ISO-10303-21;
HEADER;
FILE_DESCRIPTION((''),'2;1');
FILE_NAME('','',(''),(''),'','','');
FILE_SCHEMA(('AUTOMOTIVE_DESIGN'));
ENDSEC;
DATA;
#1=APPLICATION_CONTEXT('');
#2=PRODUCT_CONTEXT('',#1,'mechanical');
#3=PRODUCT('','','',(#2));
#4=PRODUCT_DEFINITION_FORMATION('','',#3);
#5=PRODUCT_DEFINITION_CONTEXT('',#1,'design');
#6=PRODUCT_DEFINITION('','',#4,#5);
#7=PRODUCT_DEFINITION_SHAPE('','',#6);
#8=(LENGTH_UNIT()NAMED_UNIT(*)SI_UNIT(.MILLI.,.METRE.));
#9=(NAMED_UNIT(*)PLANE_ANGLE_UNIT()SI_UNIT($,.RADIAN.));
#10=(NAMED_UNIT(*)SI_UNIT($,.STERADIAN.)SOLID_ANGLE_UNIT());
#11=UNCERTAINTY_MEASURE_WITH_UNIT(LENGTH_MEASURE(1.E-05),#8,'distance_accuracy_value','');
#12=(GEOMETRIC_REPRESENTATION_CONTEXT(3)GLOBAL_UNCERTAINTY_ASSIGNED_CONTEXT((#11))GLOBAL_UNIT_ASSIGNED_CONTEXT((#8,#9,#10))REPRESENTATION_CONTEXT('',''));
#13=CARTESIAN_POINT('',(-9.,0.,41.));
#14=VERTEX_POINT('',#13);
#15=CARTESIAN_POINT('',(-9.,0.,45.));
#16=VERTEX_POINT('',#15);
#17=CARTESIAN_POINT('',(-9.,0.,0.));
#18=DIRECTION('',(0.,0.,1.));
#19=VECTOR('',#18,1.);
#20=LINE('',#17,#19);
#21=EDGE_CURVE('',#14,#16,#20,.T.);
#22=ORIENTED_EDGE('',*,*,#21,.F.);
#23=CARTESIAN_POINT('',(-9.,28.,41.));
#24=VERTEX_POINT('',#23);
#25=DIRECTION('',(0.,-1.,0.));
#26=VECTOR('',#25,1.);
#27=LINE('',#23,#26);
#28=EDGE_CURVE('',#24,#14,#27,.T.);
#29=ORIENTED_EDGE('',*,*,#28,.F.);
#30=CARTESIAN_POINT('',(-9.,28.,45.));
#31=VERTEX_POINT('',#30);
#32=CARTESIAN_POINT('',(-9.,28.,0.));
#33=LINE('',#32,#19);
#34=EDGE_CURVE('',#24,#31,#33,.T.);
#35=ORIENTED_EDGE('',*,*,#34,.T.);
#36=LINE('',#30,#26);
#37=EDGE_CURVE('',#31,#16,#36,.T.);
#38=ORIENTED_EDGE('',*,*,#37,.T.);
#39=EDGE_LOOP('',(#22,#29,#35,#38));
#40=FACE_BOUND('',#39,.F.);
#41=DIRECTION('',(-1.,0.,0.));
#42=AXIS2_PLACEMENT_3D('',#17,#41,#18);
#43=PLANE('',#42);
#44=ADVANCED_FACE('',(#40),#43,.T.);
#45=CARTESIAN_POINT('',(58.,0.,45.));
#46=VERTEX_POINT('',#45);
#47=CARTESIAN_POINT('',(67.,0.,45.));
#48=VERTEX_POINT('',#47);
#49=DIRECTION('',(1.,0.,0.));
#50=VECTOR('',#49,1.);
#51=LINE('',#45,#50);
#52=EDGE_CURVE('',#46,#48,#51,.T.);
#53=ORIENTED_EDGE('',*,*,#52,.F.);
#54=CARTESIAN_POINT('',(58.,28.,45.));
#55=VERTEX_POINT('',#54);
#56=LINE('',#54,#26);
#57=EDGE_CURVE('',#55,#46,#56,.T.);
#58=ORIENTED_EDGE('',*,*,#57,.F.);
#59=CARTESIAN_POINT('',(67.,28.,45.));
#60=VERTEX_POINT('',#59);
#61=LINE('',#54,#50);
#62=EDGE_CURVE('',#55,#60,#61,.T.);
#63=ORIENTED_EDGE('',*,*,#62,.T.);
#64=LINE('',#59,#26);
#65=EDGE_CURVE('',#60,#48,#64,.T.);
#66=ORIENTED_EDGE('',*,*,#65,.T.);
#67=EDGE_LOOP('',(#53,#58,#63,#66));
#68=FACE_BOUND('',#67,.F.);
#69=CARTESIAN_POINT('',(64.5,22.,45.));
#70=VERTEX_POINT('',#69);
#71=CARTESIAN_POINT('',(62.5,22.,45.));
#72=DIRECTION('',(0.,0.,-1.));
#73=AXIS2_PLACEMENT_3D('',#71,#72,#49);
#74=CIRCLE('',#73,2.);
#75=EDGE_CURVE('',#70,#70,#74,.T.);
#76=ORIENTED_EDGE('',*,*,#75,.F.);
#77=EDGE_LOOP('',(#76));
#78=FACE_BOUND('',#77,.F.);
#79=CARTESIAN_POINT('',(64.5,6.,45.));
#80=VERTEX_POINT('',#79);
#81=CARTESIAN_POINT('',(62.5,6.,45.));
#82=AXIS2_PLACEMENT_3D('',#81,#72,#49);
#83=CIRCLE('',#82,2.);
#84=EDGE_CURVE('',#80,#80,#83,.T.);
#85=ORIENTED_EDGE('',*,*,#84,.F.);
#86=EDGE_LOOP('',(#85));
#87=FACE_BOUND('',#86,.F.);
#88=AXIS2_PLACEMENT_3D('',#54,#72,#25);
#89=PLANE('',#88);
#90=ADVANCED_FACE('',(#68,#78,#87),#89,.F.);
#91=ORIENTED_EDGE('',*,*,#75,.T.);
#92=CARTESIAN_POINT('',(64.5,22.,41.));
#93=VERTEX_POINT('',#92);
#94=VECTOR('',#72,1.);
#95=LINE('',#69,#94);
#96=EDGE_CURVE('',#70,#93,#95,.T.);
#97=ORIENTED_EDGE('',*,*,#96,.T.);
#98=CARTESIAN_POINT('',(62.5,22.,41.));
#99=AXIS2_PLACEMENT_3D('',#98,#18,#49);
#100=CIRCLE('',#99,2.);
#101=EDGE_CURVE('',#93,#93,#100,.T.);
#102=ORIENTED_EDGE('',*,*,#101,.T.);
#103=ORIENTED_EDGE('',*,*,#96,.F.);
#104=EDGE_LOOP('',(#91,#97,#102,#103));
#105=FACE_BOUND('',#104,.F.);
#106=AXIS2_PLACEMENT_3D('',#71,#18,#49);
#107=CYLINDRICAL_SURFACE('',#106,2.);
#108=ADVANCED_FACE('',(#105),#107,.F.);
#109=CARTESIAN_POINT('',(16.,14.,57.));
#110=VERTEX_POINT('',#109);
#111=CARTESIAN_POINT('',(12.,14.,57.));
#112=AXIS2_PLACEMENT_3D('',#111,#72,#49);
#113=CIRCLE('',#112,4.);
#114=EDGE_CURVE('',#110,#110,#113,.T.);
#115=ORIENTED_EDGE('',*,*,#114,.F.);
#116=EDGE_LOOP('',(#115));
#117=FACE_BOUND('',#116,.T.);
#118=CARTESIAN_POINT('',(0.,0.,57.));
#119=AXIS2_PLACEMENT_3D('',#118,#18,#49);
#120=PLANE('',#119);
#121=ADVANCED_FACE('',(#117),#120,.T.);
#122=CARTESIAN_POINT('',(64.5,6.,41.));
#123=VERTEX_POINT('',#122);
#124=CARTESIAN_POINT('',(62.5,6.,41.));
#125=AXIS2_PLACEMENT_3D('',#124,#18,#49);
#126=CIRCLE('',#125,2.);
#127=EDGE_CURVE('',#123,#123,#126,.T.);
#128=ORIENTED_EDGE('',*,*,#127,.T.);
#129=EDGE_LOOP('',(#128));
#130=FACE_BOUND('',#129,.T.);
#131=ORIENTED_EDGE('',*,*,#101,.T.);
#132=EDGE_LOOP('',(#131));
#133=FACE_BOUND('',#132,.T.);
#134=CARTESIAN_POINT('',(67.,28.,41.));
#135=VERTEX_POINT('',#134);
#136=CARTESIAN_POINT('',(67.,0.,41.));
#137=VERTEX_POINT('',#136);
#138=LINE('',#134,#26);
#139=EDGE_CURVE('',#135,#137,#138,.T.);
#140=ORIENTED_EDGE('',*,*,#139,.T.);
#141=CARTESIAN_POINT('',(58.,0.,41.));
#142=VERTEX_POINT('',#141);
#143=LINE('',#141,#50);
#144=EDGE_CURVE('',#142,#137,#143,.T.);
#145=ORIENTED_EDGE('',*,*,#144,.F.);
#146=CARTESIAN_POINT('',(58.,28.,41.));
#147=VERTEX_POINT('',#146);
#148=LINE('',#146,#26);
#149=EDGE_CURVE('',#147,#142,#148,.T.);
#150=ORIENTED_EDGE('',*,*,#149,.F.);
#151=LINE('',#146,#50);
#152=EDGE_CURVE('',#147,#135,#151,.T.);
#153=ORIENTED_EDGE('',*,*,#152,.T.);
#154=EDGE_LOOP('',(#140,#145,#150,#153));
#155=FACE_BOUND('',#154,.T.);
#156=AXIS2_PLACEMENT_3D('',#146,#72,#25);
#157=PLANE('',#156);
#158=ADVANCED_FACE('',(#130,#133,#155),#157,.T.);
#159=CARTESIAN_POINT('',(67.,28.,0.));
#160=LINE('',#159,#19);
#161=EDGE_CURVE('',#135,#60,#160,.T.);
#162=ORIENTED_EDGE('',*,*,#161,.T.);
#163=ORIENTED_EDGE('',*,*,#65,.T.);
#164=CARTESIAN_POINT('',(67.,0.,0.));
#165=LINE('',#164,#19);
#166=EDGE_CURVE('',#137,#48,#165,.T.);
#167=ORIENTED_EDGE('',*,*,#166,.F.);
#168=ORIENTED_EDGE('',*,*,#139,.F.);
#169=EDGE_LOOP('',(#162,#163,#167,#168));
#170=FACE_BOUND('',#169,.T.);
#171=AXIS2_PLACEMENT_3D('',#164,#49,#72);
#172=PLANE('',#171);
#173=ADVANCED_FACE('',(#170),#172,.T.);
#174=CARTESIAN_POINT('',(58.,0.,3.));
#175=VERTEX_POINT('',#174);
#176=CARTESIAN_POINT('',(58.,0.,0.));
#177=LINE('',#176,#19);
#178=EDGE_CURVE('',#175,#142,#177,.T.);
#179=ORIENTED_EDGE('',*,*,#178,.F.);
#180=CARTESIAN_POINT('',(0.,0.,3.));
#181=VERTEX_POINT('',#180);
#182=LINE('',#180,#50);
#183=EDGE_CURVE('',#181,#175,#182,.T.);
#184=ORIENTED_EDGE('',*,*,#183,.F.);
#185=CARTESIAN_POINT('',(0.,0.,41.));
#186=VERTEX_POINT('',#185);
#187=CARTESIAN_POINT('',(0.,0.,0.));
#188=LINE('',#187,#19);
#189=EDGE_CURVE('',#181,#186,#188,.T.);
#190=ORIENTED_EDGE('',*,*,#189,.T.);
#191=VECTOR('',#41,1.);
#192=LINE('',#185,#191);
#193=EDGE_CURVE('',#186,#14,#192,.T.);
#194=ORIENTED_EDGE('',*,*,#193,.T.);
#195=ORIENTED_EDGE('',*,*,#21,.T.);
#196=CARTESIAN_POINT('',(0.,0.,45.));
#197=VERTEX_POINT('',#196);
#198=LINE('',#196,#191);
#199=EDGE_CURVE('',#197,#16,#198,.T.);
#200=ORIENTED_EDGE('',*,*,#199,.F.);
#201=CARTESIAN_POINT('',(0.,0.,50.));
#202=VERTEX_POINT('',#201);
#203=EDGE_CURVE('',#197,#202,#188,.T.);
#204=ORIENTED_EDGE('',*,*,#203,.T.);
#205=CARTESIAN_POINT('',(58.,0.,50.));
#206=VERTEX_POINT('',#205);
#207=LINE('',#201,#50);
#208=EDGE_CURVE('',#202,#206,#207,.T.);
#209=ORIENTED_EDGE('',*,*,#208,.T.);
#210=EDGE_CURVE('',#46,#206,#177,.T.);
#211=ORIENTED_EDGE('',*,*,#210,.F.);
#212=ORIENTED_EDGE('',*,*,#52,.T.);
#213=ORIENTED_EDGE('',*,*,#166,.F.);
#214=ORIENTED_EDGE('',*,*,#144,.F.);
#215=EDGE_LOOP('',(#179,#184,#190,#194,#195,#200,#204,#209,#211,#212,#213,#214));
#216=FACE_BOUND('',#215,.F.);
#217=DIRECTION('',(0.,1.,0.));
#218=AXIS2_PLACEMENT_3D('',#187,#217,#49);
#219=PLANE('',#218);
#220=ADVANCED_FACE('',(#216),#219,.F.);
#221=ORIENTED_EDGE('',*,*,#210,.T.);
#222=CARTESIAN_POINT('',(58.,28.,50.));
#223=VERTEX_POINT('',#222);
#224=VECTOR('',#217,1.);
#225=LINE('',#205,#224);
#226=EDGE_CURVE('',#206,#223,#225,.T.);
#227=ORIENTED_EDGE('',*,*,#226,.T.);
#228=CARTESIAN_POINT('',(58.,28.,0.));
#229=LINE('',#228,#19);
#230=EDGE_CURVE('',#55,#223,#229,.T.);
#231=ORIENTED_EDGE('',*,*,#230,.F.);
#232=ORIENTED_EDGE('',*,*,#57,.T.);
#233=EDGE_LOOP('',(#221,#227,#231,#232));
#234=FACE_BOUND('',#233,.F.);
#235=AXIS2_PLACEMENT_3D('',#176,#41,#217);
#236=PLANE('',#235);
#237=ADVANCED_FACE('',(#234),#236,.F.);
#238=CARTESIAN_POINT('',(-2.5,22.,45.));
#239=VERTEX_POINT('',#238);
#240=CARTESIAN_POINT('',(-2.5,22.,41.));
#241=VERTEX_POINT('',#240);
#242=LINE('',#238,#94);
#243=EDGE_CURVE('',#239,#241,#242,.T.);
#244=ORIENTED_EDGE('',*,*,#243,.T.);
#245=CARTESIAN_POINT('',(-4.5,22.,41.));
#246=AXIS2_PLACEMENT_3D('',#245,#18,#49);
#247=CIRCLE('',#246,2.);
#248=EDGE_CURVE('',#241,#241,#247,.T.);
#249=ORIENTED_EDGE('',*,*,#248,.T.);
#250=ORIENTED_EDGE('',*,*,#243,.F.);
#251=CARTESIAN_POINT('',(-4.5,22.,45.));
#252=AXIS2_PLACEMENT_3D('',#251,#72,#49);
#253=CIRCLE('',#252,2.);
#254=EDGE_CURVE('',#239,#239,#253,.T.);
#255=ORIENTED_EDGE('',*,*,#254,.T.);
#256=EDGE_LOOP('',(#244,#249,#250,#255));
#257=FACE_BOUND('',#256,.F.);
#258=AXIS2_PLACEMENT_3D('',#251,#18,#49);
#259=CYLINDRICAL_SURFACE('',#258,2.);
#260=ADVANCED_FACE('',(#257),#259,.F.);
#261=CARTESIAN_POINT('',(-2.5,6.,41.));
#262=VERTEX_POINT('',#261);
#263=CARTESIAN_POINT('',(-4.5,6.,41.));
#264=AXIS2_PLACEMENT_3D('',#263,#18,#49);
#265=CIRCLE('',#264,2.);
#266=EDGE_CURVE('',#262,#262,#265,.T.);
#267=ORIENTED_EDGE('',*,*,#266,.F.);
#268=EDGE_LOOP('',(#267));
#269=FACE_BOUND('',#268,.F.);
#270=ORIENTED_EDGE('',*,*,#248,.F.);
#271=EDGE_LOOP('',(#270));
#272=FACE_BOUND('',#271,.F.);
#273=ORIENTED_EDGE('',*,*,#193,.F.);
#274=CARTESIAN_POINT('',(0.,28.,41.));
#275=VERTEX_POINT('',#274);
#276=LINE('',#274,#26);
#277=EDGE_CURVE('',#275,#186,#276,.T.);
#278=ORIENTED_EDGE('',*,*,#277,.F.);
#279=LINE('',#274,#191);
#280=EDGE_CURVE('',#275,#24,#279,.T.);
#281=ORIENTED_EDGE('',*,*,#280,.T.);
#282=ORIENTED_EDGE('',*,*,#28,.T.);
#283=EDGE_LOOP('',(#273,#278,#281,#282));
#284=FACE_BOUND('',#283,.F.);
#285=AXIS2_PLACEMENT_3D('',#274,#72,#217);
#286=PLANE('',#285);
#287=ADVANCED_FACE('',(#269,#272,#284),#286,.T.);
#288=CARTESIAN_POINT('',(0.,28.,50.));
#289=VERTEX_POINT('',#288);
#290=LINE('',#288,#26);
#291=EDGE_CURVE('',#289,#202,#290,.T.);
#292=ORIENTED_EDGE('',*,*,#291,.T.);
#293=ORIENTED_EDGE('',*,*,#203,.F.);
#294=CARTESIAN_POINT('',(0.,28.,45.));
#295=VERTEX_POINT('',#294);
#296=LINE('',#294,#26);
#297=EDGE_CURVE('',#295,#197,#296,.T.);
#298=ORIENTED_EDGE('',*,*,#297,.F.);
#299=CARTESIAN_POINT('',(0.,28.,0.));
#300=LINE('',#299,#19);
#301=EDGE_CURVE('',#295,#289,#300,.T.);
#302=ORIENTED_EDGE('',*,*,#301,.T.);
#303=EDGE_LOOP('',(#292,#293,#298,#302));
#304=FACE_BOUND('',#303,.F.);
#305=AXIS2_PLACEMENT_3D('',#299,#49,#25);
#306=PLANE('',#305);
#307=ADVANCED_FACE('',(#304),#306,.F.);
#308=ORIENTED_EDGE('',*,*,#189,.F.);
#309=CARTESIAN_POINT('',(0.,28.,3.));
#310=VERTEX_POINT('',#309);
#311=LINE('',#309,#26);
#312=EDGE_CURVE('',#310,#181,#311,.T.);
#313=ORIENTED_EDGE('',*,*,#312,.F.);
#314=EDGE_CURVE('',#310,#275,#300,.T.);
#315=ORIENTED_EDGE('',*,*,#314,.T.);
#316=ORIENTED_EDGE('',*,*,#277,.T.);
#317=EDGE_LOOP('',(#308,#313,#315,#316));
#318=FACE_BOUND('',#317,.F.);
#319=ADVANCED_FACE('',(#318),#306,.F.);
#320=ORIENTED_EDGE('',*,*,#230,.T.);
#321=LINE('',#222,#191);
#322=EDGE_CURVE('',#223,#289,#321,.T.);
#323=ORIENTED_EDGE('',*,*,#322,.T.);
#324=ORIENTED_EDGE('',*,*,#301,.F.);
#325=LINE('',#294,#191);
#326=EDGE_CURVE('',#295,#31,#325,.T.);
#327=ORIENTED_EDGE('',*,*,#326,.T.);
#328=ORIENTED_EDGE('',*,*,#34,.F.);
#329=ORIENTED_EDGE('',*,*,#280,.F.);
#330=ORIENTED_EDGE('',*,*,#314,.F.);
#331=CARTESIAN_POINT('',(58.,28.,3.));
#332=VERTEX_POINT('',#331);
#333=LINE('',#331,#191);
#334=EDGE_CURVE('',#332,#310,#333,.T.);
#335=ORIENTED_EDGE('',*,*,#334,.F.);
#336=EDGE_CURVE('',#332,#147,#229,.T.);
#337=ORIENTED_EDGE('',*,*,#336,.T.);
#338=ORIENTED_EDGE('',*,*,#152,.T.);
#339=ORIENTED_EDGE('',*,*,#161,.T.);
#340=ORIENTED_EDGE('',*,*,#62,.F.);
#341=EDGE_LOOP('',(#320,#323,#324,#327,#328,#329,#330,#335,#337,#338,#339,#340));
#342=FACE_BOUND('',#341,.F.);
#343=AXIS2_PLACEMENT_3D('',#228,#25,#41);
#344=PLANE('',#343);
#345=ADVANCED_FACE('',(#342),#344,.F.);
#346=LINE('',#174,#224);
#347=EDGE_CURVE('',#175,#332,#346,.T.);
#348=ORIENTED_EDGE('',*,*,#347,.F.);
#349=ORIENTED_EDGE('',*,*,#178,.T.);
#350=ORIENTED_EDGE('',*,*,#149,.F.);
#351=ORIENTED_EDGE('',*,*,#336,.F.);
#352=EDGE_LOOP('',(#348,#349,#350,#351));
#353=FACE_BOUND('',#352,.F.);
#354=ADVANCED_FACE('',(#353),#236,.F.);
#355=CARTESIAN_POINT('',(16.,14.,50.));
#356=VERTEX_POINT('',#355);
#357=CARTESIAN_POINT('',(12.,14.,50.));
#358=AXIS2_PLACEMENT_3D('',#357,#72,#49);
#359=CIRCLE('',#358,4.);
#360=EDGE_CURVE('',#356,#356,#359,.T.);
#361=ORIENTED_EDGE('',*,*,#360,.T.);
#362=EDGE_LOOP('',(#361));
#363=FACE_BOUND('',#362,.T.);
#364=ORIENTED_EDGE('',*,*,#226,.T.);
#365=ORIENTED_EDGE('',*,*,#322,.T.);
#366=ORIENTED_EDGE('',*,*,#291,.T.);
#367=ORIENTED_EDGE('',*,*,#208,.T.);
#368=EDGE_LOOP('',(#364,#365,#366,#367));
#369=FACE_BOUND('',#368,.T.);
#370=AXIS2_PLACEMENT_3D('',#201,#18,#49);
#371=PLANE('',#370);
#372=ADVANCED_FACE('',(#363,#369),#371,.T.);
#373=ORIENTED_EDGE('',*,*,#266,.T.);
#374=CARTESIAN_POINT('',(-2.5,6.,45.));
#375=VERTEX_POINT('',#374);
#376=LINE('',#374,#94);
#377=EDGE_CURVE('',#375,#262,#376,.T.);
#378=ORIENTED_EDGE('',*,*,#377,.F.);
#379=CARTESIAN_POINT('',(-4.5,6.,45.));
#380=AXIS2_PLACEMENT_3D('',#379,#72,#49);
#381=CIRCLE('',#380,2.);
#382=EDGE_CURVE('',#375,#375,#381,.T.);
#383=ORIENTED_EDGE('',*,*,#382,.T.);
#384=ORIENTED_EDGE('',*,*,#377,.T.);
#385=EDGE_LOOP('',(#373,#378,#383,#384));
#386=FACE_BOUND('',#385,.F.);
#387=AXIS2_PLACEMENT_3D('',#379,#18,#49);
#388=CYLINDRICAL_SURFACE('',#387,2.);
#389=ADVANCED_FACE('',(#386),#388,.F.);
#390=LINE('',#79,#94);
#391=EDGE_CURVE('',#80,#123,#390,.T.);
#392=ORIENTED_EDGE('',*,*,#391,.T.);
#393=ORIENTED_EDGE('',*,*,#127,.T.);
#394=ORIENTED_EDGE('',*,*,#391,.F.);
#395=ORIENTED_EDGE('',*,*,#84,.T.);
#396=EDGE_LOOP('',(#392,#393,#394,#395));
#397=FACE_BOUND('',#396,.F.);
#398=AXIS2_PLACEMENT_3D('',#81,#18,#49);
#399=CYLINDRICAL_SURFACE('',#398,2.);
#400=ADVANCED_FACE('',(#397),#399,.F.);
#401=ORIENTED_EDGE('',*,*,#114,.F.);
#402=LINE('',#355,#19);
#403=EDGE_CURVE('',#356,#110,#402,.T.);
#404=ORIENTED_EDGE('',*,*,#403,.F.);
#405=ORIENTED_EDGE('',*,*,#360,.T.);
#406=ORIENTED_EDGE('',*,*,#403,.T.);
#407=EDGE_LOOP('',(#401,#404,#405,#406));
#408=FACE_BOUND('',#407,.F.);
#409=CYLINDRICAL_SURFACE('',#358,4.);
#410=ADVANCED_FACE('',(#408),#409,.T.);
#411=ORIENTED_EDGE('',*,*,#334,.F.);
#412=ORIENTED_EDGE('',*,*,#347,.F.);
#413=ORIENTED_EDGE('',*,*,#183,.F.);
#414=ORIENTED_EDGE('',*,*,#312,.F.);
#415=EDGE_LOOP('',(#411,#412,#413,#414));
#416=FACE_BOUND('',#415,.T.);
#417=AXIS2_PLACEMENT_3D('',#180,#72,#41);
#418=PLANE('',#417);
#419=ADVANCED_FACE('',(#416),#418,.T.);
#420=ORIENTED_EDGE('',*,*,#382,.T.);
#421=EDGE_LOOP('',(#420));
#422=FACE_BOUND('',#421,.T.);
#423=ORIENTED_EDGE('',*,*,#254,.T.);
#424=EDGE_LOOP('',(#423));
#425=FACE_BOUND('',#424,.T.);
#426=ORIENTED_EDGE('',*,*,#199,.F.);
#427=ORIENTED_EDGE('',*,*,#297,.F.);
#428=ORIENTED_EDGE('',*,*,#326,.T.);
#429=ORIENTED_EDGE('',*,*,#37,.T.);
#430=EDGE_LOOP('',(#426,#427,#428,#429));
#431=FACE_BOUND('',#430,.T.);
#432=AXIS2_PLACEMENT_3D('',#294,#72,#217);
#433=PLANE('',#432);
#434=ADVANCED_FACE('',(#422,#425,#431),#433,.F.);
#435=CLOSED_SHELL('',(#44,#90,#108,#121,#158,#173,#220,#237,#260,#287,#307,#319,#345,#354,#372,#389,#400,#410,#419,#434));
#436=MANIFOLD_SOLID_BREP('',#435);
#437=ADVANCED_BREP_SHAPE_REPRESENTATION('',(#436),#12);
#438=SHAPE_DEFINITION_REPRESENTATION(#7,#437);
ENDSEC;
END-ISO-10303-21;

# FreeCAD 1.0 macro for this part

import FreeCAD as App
import Part
import Sketcher
Q = App.Units.Quantity


def add_polygon(sketch, points):
    """Adds a closed chain of lines whose ends are joined by coincident constraints."""
    first, n = sketch.GeometryCount, len(points)
    for a, b in zip(points, points[1:] + points[:1]):
        sketch.addGeometry(Part.LineSegment(App.Vector(*a, 0), App.Vector(*b, 0)), False)
    for i in range(n):
        sketch.addConstraint(Sketcher.Constraint("Coincident", first + i, 2, first + (i + 1) % n, 1))

doc = App.newDocument("Part")
params = doc.addObject("Spreadsheet::Sheet", "Params")
for row, (alias, value) in enumerate([
    ("sketch1_width", "58 mm"),
    ("sketch1_height", "28 mm"),
    ("pad1_length", "50 mm"),
    ("sketch2_height", "4 mm"),
    ("sketch2_width", "28 mm"),
    ("pad2_length", "9 mm"),
    ("sketch3_diameter", "4 mm"),
    ("pocket1_length", "9 mm"),
    ("sketch4_diameter", "4 mm"),
    ("pocket2_length", "9 mm"),
    ("sketch5_diameter", "8 mm"),
    ("pad3_length", "7 mm"),
    ("sketch6_width", "58 mm"),
    ("sketch6_height", "28 mm"),
    ("pocket3_length", "3 mm"),
], start=1):
    params.set(f"A{row}", alias)
    params.set(f"B{row}", "=" + value)
    params.setAlias(f"B{row}", alias)

body = doc.addObject("PartDesign::Body", "Body")

# Sketch on XY plane
sketch1 = body.newObject("Sketcher::SketchObject", "Sketch")
sketch1.AttachmentSupport = (doc.getObject("XY_Plane"), [""])
sketch1.MapMode = "FlatFace"
add_polygon(sketch1, [(0, 28), (0, 0), (58, 0), (58, 28)])  # lines 0-3
sketch1.addConstraint([
    Sketcher.Constraint("Vertical", 0),
    Sketcher.Constraint("Horizontal", 1),
    Sketcher.Constraint("Vertical", 2),
    Sketcher.Constraint("Horizontal", 3),
    Sketcher.Constraint("Coincident", 0, 2, -1, 1),
    Sketcher.Constraint("DistanceX", 1, 1, 1, 2, Q("58 mm")),
    Sketcher.Constraint("DistanceY", 0, 2, 0, 1, Q("28 mm")),
])
sketch1.setExpression("Constraints[9]", "Params.sketch1_width")
sketch1.setExpression("Constraints[10]", "Params.sketch1_height")
pad1 = body.newObject("PartDesign::Pad", "Pad")
pad1.Profile = sketch1
pad1.setExpression("Length", "Params.pad1_length")

# Sketch on YZ plane
sketch2 = body.newObject("Sketcher::SketchObject", "Sketch001")
sketch2.AttachmentSupport = (doc.getObject("YZ_Plane"), [""])
sketch2.MapMode = "FlatFace"
sketch2.AttachmentOffset = App.Placement(App.Vector(0, 0, 58), App.Rotation())
add_polygon(sketch2, [(0, 41), (28, 41), (28, 45), (0, 45)])  # lines 0-3
sketch2.addConstraint([
    Sketcher.Constraint("Horizontal", 0),
    Sketcher.Constraint("Vertical", 1),
    Sketcher.Constraint("Horizontal", 2),
    Sketcher.Constraint("Vertical", 3),
    Sketcher.Constraint("PointOnObject", 2, 2, -2),
    Sketcher.Constraint("DistanceY", 1, 1, 1, 2, Q("4 mm")),
    Sketcher.Constraint("DistanceX", 0, 1, 0, 2, Q("28 mm")),
    Sketcher.Constraint("DistanceY", -1, 1, 0, 2, Q("41 mm")),
])
sketch2.setExpression("Constraints[9]", "Params.sketch2_height")
sketch2.setExpression("Constraints[10]", "Params.sketch2_width")
pad2 = body.newObject("PartDesign::Pad", "Pad001")
pad2.Profile = sketch2
pad2.setExpression("Length", "Params.pad2_length")
doc.recompute()

datumplane = body.newObject("PartDesign::Plane", "DatumPlane")
datumplane.AttachmentSupport = (doc.getObject("YZ_Plane"), [""])
datumplane.MapMode = "FlatFace"
datumplane.AttachmentOffset = App.Placement(App.Vector(0, 0, 29), App.Rotation())
mirrored = body.newObject("PartDesign::Mirrored", "Mirrored")
mirrored.Originals = [pad2]
mirrored.MirrorPlane = (datumplane, [""])
body.Tip = mirrored

# Sketch on XY plane
sketch3 = body.newObject("Sketcher::SketchObject", "Sketch002")
sketch3.AttachmentSupport = (doc.getObject("XY_Plane"), [""])
sketch3.MapMode = "FlatFace"
sketch3.AttachmentOffset = App.Placement(App.Vector(0, 0, 45), App.Rotation())
sketch3.addGeometry([
    Part.Circle(App.Vector(-4.5, 22, 0), App.Vector(0, 0, 1), 2),
    Part.Circle(App.Vector(-4.5, 6, 0), App.Vector(0, 0, 1), 2),
], False)
sketch3.addConstraint([
    Sketcher.Constraint("Equal", 0, 1),
    Sketcher.Constraint("Vertical", 0, 3, 1, 3),
    Sketcher.Constraint("Diameter", 0, Q("4 mm")),
    Sketcher.Constraint("DistanceY", -1, 1, 1, 3, Q("6 mm")),
    Sketcher.Constraint("DistanceY", 1, 3, 0, 3, Q("16 mm")),
    Sketcher.Constraint("DistanceX", 0, 3, -1, 1, Q("4.5 mm")),
])
sketch3.setExpression("Constraints[2]", "Params.sketch3_diameter")
pocket1 = body.newObject("PartDesign::Pocket", "Pocket")
pocket1.Profile = sketch3
pocket1.setExpression("Length", "Params.pocket1_length")

# Sketch on XY plane
sketch4 = body.newObject("Sketcher::SketchObject", "Sketch003")
sketch4.AttachmentSupport = (doc.getObject("XY_Plane"), [""])
sketch4.MapMode = "FlatFace"
sketch4.AttachmentOffset = App.Placement(App.Vector(0, 0, 45), App.Rotation())
sketch4.addGeometry([
    Part.Circle(App.Vector(62.5, 6, 0), App.Vector(0, 0, 1), 2),
    Part.Circle(App.Vector(62.5, 22, 0), App.Vector(0, 0, 1), 2),
], False)
sketch4.addConstraint([
    Sketcher.Constraint("Equal", 0, 1),
    Sketcher.Constraint("Vertical", 0, 3, 1, 3),
    Sketcher.Constraint("Diameter", 0, Q("4 mm")),
    Sketcher.Constraint("DistanceY", 0, 3, 1, 3, Q("16 mm")),
    Sketcher.Constraint("DistanceY", -1, 1, 0, 3, Q("6 mm")),
    Sketcher.Constraint("DistanceX", -1, 1, 0, 3, Q("62.5 mm")),
])
sketch4.setExpression("Constraints[2]", "Params.sketch4_diameter")
pocket2 = body.newObject("PartDesign::Pocket", "Pocket001")
pocket2.Profile = sketch4
pocket2.setExpression("Length", "Params.pocket2_length")

# Sketch on XY plane
sketch5 = body.newObject("Sketcher::SketchObject", "Sketch004")
sketch5.AttachmentSupport = (doc.getObject("XY_Plane"), [""])
sketch5.MapMode = "FlatFace"
sketch5.AttachmentOffset = App.Placement(App.Vector(0, 0, 50), App.Rotation())
sketch5.addGeometry(Part.Circle(App.Vector(12, 14, 0), App.Vector(0, 0, 1), 4), False)
sketch5.addConstraint([
    Sketcher.Constraint("Diameter", 0, Q("8 mm")),
    Sketcher.Constraint("DistanceX", -1, 1, 0, 3, Q("12 mm")),
    Sketcher.Constraint("DistanceY", -1, 1, 0, 3, Q("14 mm")),
])
sketch5.setExpression("Constraints[0]", "Params.sketch5_diameter")
pad3 = body.newObject("PartDesign::Pad", "Pad002")
pad3.Profile = sketch5
pad3.setExpression("Length", "Params.pad3_length")

# Sketch on XY plane
sketch6 = body.newObject("Sketcher::SketchObject", "Sketch005")
sketch6.AttachmentSupport = (doc.getObject("XY_Plane"), [""])
sketch6.MapMode = "FlatFace"
add_polygon(sketch6, [(58, 0), (0, 0), (0, 28), (58, 28)])  # lines 0-3
sketch6.addConstraint([
    Sketcher.Constraint("Horizontal", 0),
    Sketcher.Constraint("Vertical", 1),
    Sketcher.Constraint("Horizontal", 2),
    Sketcher.Constraint("Vertical", 3),
    Sketcher.Constraint("Coincident", 0, 2, -1, 1),
    Sketcher.Constraint("DistanceX", 0, 2, 0, 1, Q("58 mm")),
    Sketcher.Constraint("DistanceY", 1, 1, 1, 2, Q("28 mm")),
])
sketch6.setExpression("Constraints[9]", "Params.sketch6_width")
sketch6.setExpression("Constraints[10]", "Params.sketch6_height")
pocket3 = body.newObject("PartDesign::Pocket", "Pocket002")
pocket3.Profile = sketch6
pocket3.setExpression("Length", "Params.pocket3_length")
pocket3.Reversed = True

doc.recompute()
